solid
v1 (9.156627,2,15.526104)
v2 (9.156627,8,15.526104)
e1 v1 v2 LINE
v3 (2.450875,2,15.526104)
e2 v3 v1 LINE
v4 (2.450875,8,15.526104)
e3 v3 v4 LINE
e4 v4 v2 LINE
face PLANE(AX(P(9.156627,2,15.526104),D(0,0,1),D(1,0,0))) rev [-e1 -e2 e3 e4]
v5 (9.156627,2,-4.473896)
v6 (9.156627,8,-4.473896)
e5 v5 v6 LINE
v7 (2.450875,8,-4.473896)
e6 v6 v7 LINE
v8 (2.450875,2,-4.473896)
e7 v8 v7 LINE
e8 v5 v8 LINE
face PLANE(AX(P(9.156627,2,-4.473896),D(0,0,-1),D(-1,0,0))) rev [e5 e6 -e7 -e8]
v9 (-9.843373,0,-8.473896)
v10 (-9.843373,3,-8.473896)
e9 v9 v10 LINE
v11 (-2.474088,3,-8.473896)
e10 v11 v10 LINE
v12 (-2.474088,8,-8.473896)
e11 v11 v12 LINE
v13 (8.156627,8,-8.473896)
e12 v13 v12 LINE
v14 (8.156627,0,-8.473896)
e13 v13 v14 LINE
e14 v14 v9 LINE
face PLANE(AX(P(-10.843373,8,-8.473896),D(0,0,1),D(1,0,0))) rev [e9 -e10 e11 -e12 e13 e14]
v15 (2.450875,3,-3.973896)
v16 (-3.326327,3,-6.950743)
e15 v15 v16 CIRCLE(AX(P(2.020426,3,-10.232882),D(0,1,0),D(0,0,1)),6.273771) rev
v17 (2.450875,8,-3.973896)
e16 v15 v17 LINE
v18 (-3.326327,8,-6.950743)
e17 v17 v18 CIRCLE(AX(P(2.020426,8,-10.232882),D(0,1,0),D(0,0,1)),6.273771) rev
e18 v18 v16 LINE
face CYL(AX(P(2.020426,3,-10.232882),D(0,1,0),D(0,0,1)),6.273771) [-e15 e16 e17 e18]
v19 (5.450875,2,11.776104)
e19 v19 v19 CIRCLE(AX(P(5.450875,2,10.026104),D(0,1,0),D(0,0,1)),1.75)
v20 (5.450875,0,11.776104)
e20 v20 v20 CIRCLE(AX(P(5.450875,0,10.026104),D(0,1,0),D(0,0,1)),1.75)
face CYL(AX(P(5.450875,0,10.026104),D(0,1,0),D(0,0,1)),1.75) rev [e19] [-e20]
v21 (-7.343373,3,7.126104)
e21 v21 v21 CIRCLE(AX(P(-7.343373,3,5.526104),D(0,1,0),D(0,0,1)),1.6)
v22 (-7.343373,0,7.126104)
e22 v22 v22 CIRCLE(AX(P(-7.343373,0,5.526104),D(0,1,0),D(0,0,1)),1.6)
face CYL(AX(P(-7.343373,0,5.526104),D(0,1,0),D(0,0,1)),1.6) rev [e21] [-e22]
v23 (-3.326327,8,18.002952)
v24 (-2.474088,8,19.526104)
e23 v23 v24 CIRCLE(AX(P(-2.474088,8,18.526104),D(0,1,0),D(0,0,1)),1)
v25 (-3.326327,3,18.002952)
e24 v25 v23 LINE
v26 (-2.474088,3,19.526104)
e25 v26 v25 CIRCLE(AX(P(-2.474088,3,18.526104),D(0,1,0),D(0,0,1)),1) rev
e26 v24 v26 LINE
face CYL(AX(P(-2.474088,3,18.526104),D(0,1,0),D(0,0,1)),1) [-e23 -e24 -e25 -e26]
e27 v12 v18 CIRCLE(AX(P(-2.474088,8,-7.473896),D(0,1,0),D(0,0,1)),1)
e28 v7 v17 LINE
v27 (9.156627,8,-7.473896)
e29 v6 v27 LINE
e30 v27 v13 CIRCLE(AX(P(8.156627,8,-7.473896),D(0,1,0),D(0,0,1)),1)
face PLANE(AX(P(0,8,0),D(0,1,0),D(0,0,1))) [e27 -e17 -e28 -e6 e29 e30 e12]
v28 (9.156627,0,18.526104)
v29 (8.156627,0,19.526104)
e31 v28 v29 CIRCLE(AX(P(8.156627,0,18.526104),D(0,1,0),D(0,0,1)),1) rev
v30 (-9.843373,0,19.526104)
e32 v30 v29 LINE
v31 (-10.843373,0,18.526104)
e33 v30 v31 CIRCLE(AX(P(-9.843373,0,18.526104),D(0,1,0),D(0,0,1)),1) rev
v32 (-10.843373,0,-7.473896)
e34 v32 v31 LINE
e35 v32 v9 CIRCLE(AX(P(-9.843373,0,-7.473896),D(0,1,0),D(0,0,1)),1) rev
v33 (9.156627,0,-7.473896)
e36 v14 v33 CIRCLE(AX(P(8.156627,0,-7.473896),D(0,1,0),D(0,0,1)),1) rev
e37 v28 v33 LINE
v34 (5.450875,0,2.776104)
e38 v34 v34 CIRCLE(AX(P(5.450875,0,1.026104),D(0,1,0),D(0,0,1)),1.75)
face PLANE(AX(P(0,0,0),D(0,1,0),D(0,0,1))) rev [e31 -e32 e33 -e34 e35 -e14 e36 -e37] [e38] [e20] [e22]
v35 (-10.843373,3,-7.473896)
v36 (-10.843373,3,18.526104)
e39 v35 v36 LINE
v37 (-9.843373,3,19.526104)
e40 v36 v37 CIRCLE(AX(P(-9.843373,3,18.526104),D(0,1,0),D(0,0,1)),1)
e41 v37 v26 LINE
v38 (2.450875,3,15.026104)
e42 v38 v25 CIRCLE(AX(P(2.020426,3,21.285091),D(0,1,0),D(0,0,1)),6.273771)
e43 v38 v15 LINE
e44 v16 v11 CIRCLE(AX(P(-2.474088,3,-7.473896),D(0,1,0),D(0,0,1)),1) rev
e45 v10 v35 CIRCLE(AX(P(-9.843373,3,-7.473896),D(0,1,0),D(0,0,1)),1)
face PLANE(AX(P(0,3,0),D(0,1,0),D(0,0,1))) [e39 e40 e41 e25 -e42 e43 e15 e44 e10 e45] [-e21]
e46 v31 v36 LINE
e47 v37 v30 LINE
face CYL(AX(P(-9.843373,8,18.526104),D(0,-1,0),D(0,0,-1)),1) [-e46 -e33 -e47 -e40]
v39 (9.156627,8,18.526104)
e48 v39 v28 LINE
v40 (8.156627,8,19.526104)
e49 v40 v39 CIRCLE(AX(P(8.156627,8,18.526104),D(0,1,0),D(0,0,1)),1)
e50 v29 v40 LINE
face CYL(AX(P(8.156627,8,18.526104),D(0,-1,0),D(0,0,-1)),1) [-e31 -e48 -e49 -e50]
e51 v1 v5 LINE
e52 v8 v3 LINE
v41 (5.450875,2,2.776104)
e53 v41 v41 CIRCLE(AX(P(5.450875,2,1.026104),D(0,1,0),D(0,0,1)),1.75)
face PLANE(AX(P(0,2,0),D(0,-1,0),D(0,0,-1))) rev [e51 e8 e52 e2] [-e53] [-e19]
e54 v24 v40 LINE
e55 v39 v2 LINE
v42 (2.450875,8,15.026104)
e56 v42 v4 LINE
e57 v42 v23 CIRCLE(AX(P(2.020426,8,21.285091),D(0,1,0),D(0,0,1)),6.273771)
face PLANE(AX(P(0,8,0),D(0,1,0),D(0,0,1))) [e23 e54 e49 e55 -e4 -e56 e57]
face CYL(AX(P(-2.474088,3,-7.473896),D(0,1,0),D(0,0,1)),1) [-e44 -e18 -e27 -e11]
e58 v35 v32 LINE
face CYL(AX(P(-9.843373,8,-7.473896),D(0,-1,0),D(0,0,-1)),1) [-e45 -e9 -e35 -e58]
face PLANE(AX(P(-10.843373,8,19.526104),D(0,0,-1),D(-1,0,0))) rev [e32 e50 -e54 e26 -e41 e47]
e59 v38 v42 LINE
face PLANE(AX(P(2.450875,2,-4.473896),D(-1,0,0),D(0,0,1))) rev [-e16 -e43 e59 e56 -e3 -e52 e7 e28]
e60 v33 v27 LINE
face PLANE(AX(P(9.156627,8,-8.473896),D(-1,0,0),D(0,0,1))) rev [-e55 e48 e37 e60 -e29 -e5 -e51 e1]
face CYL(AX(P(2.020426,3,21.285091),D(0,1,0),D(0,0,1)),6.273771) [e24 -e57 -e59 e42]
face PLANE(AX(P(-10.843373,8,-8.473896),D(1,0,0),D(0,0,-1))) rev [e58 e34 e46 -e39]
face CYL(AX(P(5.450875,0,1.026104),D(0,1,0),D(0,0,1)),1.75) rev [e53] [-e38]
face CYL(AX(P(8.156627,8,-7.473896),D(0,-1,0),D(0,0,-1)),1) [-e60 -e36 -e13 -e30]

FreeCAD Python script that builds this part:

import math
import FreeCAD as App
import Part
import Sketcher


def edges_at(feature, points):
    """Names of the edges that pass closest to the given points."""
    edges = feature.Shape.Edges
    near = lambda p: min(range(len(edges)), key=lambda i: edges[i].distToShape(Part.Vertex(*p))[0])
    return sorted({f"Edge{near(p) + 1}" for p in points})

doc = App.newDocument("Part")
body = doc.addObject("PartDesign::Body", "Body")

# Sketch on XZ plane
sketch1 = body.newObject("Sketcher::SketchObject", "Sketch")
sketch1.AttachmentSupport = (doc.getObject("XZ_Plane"), [""])
sketch1.MapMode = "FlatFace"
sketch1.addGeometry([
    Part.LineSegment(App.Vector(-11, -8, 0), App.Vector(-11, 20, 0)),
    Part.LineSegment(App.Vector(-11, 20, 0), App.Vector(9, 20, 0)),
    Part.LineSegment(App.Vector(9, 20, 0), App.Vector(9, -8, 0)),
    Part.LineSegment(App.Vector(9, -8, 0), App.Vector(-11, -8, 0)),
], False)
sketch1.addConstraint([
    Sketcher.Constraint("Coincident", 0, 2, 1, 1),
    Sketcher.Constraint("Coincident", 1, 2, 2, 1),
    Sketcher.Constraint("Coincident", 2, 2, 3, 1),
    Sketcher.Constraint("Coincident", 3, 2, 0, 1),
    Sketcher.Constraint("Vertical", 0),
    Sketcher.Constraint("Horizontal", 1),
    Sketcher.Constraint("Vertical", 2),
    Sketcher.Constraint("Horizontal", 3),
    Sketcher.Constraint("DistanceX", 1, 1, 1, 2, 20.0),
    Sketcher.Constraint("DistanceY", 0, 1, 0, 2, 28.0),
    Sketcher.Constraint("DistanceX", 0, 2, -1, 1, 10.843373),
    Sketcher.Constraint("DistanceY", -1, 1, 0, 2, 19.526104),
])
pad1 = body.newObject("PartDesign::Pad", "Pad")
pad1.Profile = sketch1
pad1.Length = 8
pad1.Reversed = True

# Sketch on XZ plane
sketch2 = body.newObject("Sketcher::SketchObject", "Sketch001")
sketch2.AttachmentSupport = (doc.getObject("XZ_Plane"), [""])
sketch2.MapMode = "FlatFace"
sketch2.AttachmentOffset = App.Placement(App.Vector(0, 0, -8), App.Rotation())
sketch2.addGeometry([
    Part.LineSegment(App.Vector(2, -4, 0), App.Vector(2, 16, 0)),
    Part.LineSegment(App.Vector(2, 16, 0), App.Vector(9, 16, 0)),
    Part.LineSegment(App.Vector(9, 16, 0), App.Vector(9, -4, 0)),
    Part.LineSegment(App.Vector(9, -4, 0), App.Vector(2, -4, 0)),
], False)
sketch2.addConstraint([
    Sketcher.Constraint("Coincident", 0, 2, 1, 1),
    Sketcher.Constraint("Coincident", 1, 2, 2, 1),
    Sketcher.Constraint("Coincident", 2, 2, 3, 1),
    Sketcher.Constraint("Coincident", 3, 2, 0, 1),
    Sketcher.Constraint("Vertical", 0),
    Sketcher.Constraint("Horizontal", 1),
    Sketcher.Constraint("Vertical", 2),
    Sketcher.Constraint("Horizontal", 3),
    Sketcher.Constraint("DistanceY", 0, 1, 0, 2, 20.0),
    Sketcher.Constraint("DistanceX", 1, 1, 1, 2, 6.705751),
    Sketcher.Constraint("DistanceX", -1, 1, 0, 2, 2.450875),
    Sketcher.Constraint("DistanceY", -1, 1, 0, 2, 15.526104),
])
pocket1 = body.newObject("PartDesign::Pocket", "Pocket")
pocket1.Profile = sketch2
pocket1.Length = 6
pocket1.Reversed = True

# Sketch on XZ plane
sketch3 = body.newObject("Sketcher::SketchObject", "Sketch002")
sketch3.AttachmentSupport = (doc.getObject("XZ_Plane"), [""])
sketch3.MapMode = "FlatFace"
sketch3.AttachmentOffset = App.Placement(App.Vector(0, 0, -8), App.Rotation())
sketch3.addGeometry([
    Part.LineSegment(App.Vector(2.5, 15, 0), App.Vector(2.5, -4, 0)),  # 0
    Part.ArcOfCircle(Part.Circle(App.Vector(2, -10.2, 0), App.Vector(0, 0, 1), 6.3), math.radians(86.07), math.radians(93.93)),  # 1
    Part.ArcOfCircle(Part.Circle(App.Vector(2, -10.2, 0), App.Vector(0, 0, 1), 6.3), math.radians(94), math.radians(164)),  # 2
    Part.LineSegment(App.Vector(-4, -8.5, 0), App.Vector(-10.8, -8.5, 0)),  # 3
    Part.LineSegment(App.Vector(-10.8, -8.5, 0), App.Vector(-10.8, 19.5, 0)),  # 4
    Part.LineSegment(App.Vector(-10.8, 19.5, 0), App.Vector(-4, 19.5, 0)),  # 5
    Part.ArcOfCircle(Part.Circle(App.Vector(2, 21.3, 0), App.Vector(0, 0, 1), 6.3), math.radians(-164), math.radians(-94)),  # 6
    Part.ArcOfCircle(Part.Circle(App.Vector(2, 21.3, 0), App.Vector(0, 0, 1), 6.3), math.radians(-93.93), math.radians(-86.07)),  # 7
], False)
sketch3.addConstraint([
    Sketcher.Constraint("Coincident", 0, 2, 1, 1),
    Sketcher.Constraint("Tangent", 1, 2, 2, 1),
    Sketcher.Constraint("Coincident", 2, 2, 3, 1),
    Sketcher.Constraint("Coincident", 3, 2, 4, 1),
    Sketcher.Constraint("Coincident", 4, 2, 5, 1),
    Sketcher.Constraint("Coincident", 5, 2, 6, 1),
    Sketcher.Constraint("Tangent", 6, 2, 7, 1),
    Sketcher.Constraint("Coincident", 7, 2, 0, 1),
    Sketcher.Constraint("Vertical", 0),
    Sketcher.Constraint("Horizontal", 3),
    Sketcher.Constraint("Vertical", 4),
    Sketcher.Constraint("Horizontal", 5),
    Sketcher.Constraint("Equal", 1, 2),
    Sketcher.Constraint("Equal", 2, 6),
    Sketcher.Constraint("Equal", 6, 7),
    Sketcher.Constraint("Horizontal", 0, 2, 1, 2),
    Sketcher.Constraint("Horizontal", 6, 2, 7, 2),
    Sketcher.Constraint("Vertical", 2, 3, 6, 3),
    Sketcher.Constraint("Vertical", 2, 2, 5, 2),
    Sketcher.Constraint("DistanceY", 0, 2, 0, 1, 19.0),
    Sketcher.Constraint("DistanceY", 4, 1, 4, 2, 28.0),
    Sketcher.Constraint("Radius", 1, 6.273771),
    Sketcher.Constraint("DistanceX", 3, 2, 3, 1, 6.84166),
    Sketcher.Constraint("DistanceX", 1, 2, 0, 2, 0.860899),
    Sketcher.Constraint("DistanceY", -1, 1, 6, 3, 21.285091),
    Sketcher.Constraint("DistanceX", -1, 1, 1, 3, 2.020426),
])
pocket2 = body.newObject("PartDesign::Pocket", "Pocket001")
pocket2.Profile = sketch3
pocket2.Length = 5
pocket2.Reversed = True

# Sketch on XZ plane
sketch4 = body.newObject("Sketcher::SketchObject", "Sketch003")
sketch4.AttachmentSupport = (doc.getObject("XZ_Plane"), [""])
sketch4.MapMode = "FlatFace"
sketch4.AttachmentOffset = App.Placement(App.Vector(0, 0, -3), App.Rotation())
sketch4.addGeometry(Part.Circle(App.Vector(-7.3, 5.5, 0), App.Vector(0, 0, 1), 1.6), False)
sketch4.addConstraint([
    Sketcher.Constraint("Diameter", 0, 3.2),
    Sketcher.Constraint("DistanceX", 0, 3, -1, 1, 7.343373),
    Sketcher.Constraint("DistanceY", -1, 1, 0, 3, 5.526104),
])
pocket3 = body.newObject("PartDesign::Pocket", "Pocket002")
pocket3.Profile = sketch4
pocket3.Length = 3
pocket3.Reversed = True
doc.recompute()

fillet = body.newObject("PartDesign::Fillet", "Fillet")
fillet.Base = (pocket3, edges_at(pocket3, [
    (-10.843, 1.5, -8.474),
    (-10.843, 1.5, 19.526),
    (-4.002, 5.5, 19.526),
    (-4.002, 5.5, -8.474),
    (9.157, 4, -8.474),
    (9.157, 4, 19.526),
]))
fillet.Radius = 1

# Sketch on XZ plane
sketch5 = body.newObject("Sketcher::SketchObject", "Sketch004")
sketch5.AttachmentSupport = (doc.getObject("XZ_Plane"), [""])
sketch5.MapMode = "FlatFace"
sketch5.AttachmentOffset = App.Placement(App.Vector(0, 0, -2), App.Rotation())
sketch5.addGeometry([
    Part.Circle(App.Vector(5.5, 1, 0), App.Vector(0, 0, 1), 1.8),
    Part.Circle(App.Vector(5.5, 10, 0), App.Vector(0, 0, 1), 1.8),
], False)
sketch5.addConstraint([
    Sketcher.Constraint("Equal", 0, 1),
    Sketcher.Constraint("Vertical", 0, 3, 1, 3),
    Sketcher.Constraint("Diameter", 0, 3.5),
    Sketcher.Constraint("DistanceY", 0, 3, 1, 3, 9.0),
    Sketcher.Constraint("DistanceX", -1, 1, 0, 3, 5.450875),
    Sketcher.Constraint("DistanceY", -1, 1, 0, 3, 1.026104),
])
pocket4 = body.newObject("PartDesign::Pocket", "Pocket003")
pocket4.Profile = sketch5
pocket4.Type = "ThroughAll"
pocket4.Reversed = True

doc.recompute()
